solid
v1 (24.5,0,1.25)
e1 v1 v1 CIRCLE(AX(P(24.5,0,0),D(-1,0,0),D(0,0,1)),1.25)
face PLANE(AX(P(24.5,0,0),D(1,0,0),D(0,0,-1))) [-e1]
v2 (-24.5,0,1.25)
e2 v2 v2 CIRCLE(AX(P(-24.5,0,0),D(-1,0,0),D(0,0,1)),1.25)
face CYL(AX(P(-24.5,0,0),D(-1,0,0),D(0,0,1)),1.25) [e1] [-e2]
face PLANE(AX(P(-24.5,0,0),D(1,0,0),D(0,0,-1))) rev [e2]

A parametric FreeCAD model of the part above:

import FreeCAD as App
import Part
import Sketcher


def add_polygon(sketch, points):
    """Adds a closed chain of lines whose ends are joined by coincident constraints."""
    first, n = sketch.GeometryCount, len(points)
    for a, b in zip(points, points[1:] + points[:1]):
        sketch.addGeometry(Part.LineSegment(App.Vector(*a, 0), App.Vector(*b, 0)), False)
    for i in range(n):
        sketch.addConstraint(Sketcher.Constraint("Coincident", first + i, 2, first + (i + 1) % n, 1))

doc = App.newDocument("Part")
body = doc.addObject("PartDesign::Body", "Body")

# Sketch on XY plane
sketch1 = body.newObject("Sketcher::SketchObject", "Sketch")
sketch1.AttachmentSupport = (doc.getObject("XY_Plane"), [""])
sketch1.MapMode = "FlatFace"
add_polygon(sketch1, [(-24.5, 1.25), (-24.5, 0), (24.5, 0), (24.5, 1.25)])  # lines 0-3
sketch1.addConstraint(Sketcher.Constraint("Vertical", 0))
sketch1.addConstraint(Sketcher.Constraint("Horizontal", 1))
sketch1.addConstraint(Sketcher.Constraint("Vertical", 2))
sketch1.addConstraint(Sketcher.Constraint("Horizontal", 3))
sketch1.addConstraint(Sketcher.Constraint("Symmetric", 0, 2, 1, 2, -1, 1))
sketch1.addConstraint(Sketcher.Constraint("DistanceX", 1, 1, 1, 2, 49.0))
sketch1.addConstraint(Sketcher.Constraint("DistanceY", 0, 2, 0, 1, 1.25))
revolution = body.newObject("PartDesign::Revolution", "Revolution")
revolution.Profile = sketch1
revolution.ReferenceAxis = (sketch1, ["H_Axis"])
revolution.Angle = 360

doc.recompute()
